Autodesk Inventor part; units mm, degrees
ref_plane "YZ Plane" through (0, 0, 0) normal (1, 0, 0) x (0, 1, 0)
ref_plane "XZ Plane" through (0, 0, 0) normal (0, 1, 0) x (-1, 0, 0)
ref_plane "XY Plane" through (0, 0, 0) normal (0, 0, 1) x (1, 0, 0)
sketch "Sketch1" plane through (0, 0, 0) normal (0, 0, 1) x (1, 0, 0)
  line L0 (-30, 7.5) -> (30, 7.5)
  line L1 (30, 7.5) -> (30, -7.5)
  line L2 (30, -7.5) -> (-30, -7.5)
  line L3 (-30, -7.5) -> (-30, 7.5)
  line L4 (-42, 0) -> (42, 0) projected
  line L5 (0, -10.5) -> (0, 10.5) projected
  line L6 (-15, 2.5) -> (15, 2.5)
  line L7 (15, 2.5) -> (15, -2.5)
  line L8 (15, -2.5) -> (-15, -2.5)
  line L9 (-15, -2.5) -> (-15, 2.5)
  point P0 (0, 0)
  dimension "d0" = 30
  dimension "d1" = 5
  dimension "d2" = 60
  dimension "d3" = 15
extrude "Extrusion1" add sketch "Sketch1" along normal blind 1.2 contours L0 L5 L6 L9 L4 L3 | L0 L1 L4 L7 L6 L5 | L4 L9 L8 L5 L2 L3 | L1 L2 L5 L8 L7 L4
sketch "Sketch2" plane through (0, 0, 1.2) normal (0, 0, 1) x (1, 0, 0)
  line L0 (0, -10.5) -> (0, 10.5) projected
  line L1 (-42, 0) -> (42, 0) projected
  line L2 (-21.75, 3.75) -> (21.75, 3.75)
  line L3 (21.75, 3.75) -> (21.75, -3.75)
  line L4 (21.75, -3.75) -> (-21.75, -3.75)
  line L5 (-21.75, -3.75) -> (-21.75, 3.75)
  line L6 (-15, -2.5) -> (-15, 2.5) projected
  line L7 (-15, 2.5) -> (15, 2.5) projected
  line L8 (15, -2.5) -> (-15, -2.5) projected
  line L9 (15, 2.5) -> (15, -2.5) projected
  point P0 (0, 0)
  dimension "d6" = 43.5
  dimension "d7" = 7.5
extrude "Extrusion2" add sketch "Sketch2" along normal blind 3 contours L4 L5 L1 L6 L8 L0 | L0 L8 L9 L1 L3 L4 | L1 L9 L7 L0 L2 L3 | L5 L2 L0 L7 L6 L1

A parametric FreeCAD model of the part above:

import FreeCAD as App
import Part
import Sketcher


def add_polygon(sketch, points):
    """Adds a closed chain of lines whose ends are joined by coincident constraints."""
    first, n = sketch.GeometryCount, len(points)
    for a, b in zip(points, points[1:] + points[:1]):
        sketch.addGeometry(Part.LineSegment(App.Vector(*a, 0), App.Vector(*b, 0)), False)
    for i in range(n):
        sketch.addConstraint(Sketcher.Constraint("Coincident", first + i, 2, first + (i + 1) % n, 1))

doc = App.newDocument("Part")
params = doc.addObject("Spreadsheet::Sheet", "Params")
for row, (alias, value) in enumerate([
    ("sketch1_width", "60 mm"),
    ("sketch1_width2", "30 mm"),
    ("sketch1_height", "15 mm"),
    ("sketch1_height2", "5 mm"),
    ("pad1_length", "1.2 mm"),
    ("sketch2_width", "43.5 mm"),
    ("sketch2_height", "7.5 mm"),
    ("sketch2_width2", "30 mm"),
    ("sketch2_height2", "5 mm"),
    ("pad2_length", "3 mm"),
], start=1):
    params.set(f"A{row}", alias)
    params.set(f"B{row}", "=" + value)
    params.setAlias(f"B{row}", alias)

body = doc.addObject("PartDesign::Body", "Body")

sketch1 = body.newObject("Sketcher::SketchObject", "Sketch")
sketch1.AttachmentSupport = (doc.getObject("XY_Plane"), [""])
sketch1.MapMode = "FlatFace"
add_polygon(sketch1, [(-30, 8), (-30, -8), (30, -8), (30, 8)])
add_polygon(sketch1, [(-15, 2), (15, 2), (15, -2), (-15, -2)])
sketch1.addConstraint(Sketcher.Constraint("Vertical", 0))
sketch1.addConstraint(Sketcher.Constraint("Horizontal", 1))
sketch1.addConstraint(Sketcher.Constraint("Vertical", 2))
sketch1.addConstraint(Sketcher.Constraint("Horizontal", 3))
sketch1.addConstraint(Sketcher.Constraint("Horizontal", 4))
sketch1.addConstraint(Sketcher.Constraint("Vertical", 5))
sketch1.addConstraint(Sketcher.Constraint("Horizontal", 6))
sketch1.addConstraint(Sketcher.Constraint("Vertical", 7))
sketch1.addConstraint(Sketcher.Constraint("Symmetric", 0, 2, 2, 2, -1, 1))
sketch1.addConstraint(Sketcher.Constraint("Symmetric", 4, 2, 6, 2, -1, 1))
sketch1.addConstraint(Sketcher.Constraint("DistanceX", 1, 1, 1, 2, 60.0))
sketch1.addConstraint(Sketcher.Constraint("DistanceX", 4, 1, 4, 2, 30.0))
sketch1.addConstraint(Sketcher.Constraint("DistanceY", 0, 2, 0, 1, 15.0))
sketch1.addConstraint(Sketcher.Constraint("DistanceY", 5, 2, 5, 1, 5.0))
sketch1.setExpression("Constraints[18]", "Params.sketch1_width")
sketch1.setExpression("Constraints[19]", "Params.sketch1_width2")
sketch1.setExpression("Constraints[20]", "Params.sketch1_height")
sketch1.setExpression("Constraints[21]", "Params.sketch1_height2")
pad1 = body.newObject("PartDesign::Pad", "Pad")
pad1.Profile = sketch1
pad1.setExpression("Length", "Params.pad1_length")

sketch2 = body.newObject("Sketcher::SketchObject", "Sketch001")
sketch2.AttachmentSupport = (doc.getObject("XY_Plane"), [""])
sketch2.MapMode = "FlatFace"
sketch2.AttachmentOffset = App.Placement(App.Vector(0, 0, 1.2), App.Rotation())
add_polygon(sketch2, [(-22, -4), (22, -4), (22, 4), (-22, 4)])
add_polygon(sketch2, [(-15, -2), (-15, 2), (15, 2), (15, -2)])
sketch2.addConstraint(Sketcher.Constraint("Horizontal", 0))
sketch2.addConstraint(Sketcher.Constraint("Vertical", 1))
sketch2.addConstraint(Sketcher.Constraint("Horizontal", 2))
sketch2.addConstraint(Sketcher.Constraint("Vertical", 3))
sketch2.addConstraint(Sketcher.Constraint("Vertical", 4))
sketch2.addConstraint(Sketcher.Constraint("Horizontal", 5))
sketch2.addConstraint(Sketcher.Constraint("Vertical", 6))
sketch2.addConstraint(Sketcher.Constraint("Horizontal", 7))
sketch2.addConstraint(Sketcher.Constraint("Symmetric", 0, 2, 2, 2, -1, 1))
sketch2.addConstraint(Sketcher.Constraint("Symmetric", 4, 2, 6, 2, -1, 1))
sketch2.addConstraint(Sketcher.Constraint("DistanceX", 0, 1, 0, 2, 43.5))
sketch2.addConstraint(Sketcher.Constraint("DistanceY", 1, 1, 1, 2, 7.5))
sketch2.addConstraint(Sketcher.Constraint("DistanceX", 5, 1, 5, 2, 30.0))
sketch2.addConstraint(Sketcher.Constraint("DistanceY", 4, 1, 4, 2, 5.0))
sketch2.setExpression("Constraints[18]", "Params.sketch2_width")
sketch2.setExpression("Constraints[19]", "Params.sketch2_height")
sketch2.setExpression("Constraints[20]", "Params.sketch2_width2")
sketch2.setExpression("Constraints[21]", "Params.sketch2_height2")
pad2 = body.newObject("PartDesign::Pad", "Pad001")
pad2.Profile = sketch2
pad2.setExpression("Length", "Params.pad2_length")

doc.recompute()
